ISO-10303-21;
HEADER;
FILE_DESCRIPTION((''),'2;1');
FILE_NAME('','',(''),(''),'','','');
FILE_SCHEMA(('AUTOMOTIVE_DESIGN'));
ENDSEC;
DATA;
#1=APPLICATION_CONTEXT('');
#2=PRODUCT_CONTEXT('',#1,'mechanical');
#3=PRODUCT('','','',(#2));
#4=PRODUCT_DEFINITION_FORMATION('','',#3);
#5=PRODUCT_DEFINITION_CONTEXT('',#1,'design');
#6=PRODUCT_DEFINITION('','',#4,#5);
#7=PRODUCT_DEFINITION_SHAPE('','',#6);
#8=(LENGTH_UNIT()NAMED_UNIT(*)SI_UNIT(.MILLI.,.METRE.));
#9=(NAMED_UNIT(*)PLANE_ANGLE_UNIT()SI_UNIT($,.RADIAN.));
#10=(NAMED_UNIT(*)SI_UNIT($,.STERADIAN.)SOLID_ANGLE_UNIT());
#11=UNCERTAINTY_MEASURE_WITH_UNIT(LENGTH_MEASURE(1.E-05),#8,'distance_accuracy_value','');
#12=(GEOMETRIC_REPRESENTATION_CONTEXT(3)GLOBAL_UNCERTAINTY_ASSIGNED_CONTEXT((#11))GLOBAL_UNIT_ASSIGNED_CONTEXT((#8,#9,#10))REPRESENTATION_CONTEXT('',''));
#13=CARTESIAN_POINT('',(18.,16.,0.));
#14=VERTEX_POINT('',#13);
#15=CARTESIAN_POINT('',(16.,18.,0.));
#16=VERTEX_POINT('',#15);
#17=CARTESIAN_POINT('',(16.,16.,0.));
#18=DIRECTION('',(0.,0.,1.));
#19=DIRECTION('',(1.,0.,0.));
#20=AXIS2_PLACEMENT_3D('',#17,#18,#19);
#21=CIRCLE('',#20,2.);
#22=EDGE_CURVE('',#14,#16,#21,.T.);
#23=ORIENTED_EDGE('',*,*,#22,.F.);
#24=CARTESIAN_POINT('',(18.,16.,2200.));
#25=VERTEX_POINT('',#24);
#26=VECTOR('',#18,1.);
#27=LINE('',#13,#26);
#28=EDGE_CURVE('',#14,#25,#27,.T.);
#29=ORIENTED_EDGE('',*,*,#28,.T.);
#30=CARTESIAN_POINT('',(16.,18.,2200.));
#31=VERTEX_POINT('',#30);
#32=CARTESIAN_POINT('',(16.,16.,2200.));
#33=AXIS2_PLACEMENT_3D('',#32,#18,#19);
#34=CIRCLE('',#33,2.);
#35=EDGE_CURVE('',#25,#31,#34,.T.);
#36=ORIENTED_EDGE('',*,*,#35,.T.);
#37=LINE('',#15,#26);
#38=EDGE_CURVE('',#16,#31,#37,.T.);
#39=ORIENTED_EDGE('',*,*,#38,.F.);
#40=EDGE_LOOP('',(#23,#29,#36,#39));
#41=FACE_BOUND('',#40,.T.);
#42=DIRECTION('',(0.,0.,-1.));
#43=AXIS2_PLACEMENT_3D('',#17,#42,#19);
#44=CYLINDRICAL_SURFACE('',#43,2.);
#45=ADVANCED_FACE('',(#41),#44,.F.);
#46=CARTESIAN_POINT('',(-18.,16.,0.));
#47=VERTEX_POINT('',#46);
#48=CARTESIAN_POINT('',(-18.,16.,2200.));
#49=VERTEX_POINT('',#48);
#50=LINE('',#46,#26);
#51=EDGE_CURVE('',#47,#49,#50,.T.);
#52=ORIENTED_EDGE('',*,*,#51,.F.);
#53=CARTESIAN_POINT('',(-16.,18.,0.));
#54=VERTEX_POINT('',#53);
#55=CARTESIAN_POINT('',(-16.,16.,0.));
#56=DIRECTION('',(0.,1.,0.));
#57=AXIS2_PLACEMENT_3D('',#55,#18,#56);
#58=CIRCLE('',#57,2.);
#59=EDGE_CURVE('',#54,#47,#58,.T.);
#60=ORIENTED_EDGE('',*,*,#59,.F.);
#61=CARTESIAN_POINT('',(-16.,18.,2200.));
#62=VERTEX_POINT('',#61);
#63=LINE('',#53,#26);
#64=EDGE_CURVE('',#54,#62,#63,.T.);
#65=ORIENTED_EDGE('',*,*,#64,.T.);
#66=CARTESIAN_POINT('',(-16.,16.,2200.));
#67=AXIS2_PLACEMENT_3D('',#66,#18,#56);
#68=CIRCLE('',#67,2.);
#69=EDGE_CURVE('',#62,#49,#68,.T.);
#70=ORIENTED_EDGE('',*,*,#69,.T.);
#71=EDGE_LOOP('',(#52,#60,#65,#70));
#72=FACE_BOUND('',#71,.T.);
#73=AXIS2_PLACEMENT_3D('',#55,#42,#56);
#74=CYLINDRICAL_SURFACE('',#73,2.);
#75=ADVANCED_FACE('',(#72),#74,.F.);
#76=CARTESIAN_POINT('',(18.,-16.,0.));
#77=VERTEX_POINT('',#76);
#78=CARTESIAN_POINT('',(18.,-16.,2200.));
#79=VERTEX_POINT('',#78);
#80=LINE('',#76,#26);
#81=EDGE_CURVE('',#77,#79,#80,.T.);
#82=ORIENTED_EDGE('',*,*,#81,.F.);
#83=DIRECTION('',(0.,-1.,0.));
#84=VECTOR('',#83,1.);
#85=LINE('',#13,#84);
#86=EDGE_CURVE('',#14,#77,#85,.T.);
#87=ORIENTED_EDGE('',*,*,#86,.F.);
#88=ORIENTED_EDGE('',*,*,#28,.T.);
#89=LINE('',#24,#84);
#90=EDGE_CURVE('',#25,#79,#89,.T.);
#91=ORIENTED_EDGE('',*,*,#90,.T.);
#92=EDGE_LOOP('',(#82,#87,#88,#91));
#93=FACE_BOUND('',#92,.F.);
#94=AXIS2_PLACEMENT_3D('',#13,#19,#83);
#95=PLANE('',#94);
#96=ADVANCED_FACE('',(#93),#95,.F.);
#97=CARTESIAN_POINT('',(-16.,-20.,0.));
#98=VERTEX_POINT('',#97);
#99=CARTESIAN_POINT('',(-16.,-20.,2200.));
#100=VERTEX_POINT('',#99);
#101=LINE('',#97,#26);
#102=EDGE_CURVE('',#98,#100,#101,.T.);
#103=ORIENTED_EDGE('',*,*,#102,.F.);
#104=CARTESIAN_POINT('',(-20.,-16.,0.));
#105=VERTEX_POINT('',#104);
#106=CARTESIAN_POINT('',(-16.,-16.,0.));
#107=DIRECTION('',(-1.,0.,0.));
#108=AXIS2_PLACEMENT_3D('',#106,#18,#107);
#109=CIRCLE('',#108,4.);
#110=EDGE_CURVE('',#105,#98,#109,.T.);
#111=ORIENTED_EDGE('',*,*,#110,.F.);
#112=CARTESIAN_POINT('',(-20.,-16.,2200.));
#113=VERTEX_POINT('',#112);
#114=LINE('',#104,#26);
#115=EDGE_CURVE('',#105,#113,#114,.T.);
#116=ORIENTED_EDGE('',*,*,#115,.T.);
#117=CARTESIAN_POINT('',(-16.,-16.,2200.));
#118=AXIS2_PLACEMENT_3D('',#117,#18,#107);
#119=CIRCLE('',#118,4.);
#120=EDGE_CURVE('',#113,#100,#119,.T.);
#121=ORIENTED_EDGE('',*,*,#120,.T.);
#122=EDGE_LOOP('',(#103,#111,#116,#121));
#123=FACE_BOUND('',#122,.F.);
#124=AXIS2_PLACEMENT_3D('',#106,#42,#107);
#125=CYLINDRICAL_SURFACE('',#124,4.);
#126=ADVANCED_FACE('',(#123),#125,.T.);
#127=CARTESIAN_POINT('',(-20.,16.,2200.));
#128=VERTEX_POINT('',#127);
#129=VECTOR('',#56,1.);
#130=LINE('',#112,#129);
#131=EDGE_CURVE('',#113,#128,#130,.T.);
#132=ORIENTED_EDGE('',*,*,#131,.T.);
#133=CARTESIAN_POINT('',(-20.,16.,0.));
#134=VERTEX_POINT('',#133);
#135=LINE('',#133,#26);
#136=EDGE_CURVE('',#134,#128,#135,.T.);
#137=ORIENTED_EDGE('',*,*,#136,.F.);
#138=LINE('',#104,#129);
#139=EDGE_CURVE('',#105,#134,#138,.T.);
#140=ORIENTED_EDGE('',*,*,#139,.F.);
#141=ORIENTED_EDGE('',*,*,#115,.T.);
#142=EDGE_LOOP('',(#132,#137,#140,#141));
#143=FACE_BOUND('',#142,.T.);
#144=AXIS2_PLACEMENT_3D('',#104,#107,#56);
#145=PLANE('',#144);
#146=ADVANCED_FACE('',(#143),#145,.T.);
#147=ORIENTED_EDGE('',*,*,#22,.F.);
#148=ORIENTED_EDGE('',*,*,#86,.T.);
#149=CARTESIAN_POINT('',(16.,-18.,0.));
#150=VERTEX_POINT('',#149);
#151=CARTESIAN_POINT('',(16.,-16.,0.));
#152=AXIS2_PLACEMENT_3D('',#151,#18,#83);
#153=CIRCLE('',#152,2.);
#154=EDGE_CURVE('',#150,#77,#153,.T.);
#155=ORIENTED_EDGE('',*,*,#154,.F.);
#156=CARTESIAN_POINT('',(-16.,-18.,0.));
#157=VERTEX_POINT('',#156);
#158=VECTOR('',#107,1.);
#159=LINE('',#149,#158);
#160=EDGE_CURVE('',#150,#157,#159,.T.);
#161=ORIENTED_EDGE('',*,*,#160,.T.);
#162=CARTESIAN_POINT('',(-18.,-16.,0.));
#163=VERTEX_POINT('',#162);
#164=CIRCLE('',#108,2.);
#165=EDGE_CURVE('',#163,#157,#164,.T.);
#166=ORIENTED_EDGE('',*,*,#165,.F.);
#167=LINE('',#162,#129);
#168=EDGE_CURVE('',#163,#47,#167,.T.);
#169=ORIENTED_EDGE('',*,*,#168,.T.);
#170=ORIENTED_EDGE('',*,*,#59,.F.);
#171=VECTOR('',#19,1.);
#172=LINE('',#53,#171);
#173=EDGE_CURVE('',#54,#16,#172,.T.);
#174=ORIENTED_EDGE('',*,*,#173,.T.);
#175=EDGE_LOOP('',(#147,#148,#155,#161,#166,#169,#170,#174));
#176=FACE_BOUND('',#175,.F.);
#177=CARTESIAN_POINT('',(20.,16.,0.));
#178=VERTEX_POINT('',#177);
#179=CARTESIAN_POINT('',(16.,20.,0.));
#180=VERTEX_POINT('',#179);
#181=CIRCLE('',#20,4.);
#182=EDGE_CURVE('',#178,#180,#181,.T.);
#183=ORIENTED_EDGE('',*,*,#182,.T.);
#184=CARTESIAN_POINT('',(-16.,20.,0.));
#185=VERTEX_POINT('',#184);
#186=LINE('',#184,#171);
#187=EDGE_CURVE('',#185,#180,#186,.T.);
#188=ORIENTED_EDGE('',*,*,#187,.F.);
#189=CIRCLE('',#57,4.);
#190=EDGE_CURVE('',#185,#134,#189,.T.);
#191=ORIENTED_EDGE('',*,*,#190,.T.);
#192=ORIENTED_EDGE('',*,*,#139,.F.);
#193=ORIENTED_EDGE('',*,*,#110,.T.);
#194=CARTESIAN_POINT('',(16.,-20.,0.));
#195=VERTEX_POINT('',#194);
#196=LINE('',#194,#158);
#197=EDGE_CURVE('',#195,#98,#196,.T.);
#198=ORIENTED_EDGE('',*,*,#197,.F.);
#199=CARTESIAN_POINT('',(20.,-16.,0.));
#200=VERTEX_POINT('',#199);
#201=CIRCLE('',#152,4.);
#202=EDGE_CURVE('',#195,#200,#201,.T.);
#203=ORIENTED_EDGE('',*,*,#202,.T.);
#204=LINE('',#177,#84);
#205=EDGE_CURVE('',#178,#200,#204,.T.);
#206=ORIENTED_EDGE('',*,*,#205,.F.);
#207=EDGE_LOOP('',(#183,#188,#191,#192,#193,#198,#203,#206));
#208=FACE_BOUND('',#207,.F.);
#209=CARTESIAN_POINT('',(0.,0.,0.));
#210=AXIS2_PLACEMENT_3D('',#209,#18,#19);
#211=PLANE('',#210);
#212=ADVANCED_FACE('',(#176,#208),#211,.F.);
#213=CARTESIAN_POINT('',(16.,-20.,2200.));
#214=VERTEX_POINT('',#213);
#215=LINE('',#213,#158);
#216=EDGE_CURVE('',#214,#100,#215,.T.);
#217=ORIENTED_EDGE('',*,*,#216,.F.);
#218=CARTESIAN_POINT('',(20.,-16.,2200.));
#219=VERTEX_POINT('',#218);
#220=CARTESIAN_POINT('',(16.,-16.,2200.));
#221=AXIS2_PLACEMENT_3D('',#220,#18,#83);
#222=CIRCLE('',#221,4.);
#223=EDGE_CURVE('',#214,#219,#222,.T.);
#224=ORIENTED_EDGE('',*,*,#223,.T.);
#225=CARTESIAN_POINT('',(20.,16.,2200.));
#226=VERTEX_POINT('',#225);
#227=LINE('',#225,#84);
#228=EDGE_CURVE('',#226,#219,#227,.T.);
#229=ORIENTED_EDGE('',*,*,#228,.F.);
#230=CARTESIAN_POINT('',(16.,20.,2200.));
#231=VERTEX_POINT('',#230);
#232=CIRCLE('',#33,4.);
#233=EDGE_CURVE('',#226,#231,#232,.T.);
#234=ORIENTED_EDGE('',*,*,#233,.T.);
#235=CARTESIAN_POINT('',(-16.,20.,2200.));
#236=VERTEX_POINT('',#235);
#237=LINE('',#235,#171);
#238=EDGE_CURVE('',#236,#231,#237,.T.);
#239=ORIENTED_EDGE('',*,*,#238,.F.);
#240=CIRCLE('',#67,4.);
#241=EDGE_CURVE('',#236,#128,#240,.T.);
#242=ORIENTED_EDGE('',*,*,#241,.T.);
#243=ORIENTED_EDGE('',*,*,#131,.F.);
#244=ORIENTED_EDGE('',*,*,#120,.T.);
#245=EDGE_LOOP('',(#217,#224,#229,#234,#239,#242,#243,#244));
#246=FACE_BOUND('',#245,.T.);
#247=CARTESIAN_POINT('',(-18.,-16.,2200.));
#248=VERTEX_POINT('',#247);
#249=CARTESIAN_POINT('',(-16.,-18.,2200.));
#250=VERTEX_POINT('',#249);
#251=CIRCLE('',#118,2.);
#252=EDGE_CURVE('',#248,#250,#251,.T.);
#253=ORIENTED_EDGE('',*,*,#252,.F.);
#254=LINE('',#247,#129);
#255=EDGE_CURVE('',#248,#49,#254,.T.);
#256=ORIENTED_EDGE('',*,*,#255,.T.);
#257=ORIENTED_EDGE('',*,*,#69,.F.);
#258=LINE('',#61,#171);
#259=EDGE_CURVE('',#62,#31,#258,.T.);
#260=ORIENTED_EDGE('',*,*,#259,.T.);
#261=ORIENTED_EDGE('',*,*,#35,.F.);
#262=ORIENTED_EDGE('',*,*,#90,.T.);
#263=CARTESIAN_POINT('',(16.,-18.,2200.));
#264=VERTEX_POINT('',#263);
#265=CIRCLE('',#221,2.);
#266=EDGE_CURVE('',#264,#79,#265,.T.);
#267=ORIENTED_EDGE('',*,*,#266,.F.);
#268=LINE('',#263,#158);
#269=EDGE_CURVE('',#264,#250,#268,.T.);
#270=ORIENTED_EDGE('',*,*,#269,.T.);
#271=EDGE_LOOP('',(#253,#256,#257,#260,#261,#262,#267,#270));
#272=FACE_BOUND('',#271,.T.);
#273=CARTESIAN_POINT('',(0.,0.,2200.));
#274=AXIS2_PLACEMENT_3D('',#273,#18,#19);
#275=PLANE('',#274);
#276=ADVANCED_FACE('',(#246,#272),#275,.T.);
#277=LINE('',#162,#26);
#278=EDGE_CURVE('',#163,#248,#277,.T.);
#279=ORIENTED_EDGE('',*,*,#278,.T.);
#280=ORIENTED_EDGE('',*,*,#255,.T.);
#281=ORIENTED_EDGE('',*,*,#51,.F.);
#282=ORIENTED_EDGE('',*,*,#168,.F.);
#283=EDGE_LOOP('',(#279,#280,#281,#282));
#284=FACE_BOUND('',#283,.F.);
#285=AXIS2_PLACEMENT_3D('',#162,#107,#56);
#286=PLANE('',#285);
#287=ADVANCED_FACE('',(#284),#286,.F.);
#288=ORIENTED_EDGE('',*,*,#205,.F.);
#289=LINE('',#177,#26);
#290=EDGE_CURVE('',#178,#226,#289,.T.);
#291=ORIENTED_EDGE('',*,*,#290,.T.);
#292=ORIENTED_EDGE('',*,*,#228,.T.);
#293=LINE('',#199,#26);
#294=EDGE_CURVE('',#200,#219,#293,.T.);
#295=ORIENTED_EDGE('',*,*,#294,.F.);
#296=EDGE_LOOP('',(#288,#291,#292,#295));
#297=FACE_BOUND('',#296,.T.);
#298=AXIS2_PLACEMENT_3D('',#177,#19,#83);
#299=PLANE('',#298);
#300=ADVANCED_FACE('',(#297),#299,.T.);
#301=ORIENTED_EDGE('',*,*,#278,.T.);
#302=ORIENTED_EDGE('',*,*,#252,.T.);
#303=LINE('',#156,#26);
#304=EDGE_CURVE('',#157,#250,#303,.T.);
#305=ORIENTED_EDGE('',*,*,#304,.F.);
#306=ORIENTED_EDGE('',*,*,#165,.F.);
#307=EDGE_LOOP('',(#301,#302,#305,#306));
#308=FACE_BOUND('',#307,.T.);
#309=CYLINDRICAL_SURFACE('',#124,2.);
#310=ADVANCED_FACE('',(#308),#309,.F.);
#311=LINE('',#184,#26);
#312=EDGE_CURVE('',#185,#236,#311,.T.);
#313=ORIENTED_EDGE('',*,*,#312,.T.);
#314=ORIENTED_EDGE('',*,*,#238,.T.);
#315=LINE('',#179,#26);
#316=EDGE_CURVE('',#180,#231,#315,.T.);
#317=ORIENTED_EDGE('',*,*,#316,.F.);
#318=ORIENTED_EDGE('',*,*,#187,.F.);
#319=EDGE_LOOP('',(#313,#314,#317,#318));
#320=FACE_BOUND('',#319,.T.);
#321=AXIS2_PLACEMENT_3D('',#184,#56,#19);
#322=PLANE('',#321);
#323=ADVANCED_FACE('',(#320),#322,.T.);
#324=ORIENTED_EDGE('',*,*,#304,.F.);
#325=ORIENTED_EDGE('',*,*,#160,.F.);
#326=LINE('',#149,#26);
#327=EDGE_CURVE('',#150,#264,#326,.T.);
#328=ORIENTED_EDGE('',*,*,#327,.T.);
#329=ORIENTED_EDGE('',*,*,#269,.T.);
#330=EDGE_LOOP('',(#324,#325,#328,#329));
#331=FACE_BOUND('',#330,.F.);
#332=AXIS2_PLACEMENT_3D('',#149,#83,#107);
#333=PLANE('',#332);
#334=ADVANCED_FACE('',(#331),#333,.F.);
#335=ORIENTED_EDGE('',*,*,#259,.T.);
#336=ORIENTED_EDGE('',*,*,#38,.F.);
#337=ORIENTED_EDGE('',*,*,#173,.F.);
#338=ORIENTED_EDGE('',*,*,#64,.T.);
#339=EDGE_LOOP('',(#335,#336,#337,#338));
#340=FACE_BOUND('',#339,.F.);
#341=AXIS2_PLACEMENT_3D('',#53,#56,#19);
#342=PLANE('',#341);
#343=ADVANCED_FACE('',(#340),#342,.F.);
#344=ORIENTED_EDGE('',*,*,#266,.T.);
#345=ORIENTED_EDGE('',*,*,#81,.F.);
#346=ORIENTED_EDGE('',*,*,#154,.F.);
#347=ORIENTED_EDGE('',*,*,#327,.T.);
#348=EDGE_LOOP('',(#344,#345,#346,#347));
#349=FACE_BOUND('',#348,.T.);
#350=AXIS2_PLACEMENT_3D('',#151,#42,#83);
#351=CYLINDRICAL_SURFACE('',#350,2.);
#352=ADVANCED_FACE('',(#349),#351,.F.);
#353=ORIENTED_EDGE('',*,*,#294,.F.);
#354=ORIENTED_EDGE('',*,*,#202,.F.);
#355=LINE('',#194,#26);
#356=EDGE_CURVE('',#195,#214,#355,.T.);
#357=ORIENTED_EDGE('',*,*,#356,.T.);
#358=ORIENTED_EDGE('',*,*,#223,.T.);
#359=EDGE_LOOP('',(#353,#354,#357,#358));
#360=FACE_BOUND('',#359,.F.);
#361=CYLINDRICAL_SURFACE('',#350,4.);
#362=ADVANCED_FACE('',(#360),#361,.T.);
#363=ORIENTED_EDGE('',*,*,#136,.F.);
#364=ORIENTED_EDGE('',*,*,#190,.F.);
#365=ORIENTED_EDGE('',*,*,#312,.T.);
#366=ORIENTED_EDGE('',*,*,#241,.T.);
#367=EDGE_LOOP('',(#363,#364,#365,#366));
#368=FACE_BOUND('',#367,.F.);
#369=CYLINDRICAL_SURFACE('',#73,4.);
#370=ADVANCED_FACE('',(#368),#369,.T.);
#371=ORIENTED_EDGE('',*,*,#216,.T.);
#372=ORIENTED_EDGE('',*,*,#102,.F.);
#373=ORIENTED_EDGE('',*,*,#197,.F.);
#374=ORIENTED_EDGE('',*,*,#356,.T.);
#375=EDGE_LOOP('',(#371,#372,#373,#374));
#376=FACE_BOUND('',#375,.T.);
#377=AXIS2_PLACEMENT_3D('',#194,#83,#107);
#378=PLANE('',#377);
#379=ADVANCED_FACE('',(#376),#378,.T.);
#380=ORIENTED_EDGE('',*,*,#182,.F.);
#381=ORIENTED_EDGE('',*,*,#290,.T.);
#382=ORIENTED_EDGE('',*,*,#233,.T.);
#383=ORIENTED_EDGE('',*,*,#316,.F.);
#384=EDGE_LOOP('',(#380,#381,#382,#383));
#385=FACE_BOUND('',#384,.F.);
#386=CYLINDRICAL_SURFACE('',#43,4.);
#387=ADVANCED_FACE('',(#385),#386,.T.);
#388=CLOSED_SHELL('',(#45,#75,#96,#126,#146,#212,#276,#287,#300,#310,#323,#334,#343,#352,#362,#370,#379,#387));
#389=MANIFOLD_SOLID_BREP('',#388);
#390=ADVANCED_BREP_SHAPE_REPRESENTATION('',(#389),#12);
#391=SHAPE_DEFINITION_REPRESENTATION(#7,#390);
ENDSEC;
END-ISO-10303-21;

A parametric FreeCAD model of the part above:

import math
import FreeCAD as App
import Part
import Sketcher
from FreeCAD import Vector

doc = App.newDocument("Part")
params = doc.addObject("Spreadsheet::Sheet", "Params")
for row, (alias, value) in enumerate([
    ("sketch1_radius", "4 mm"),
    ("sketch1_radius2", "2 mm"),
    ("pad1_length", "2200 mm"),
], start=1):
    params.set(f"A{row}", alias)
    params.set(f"B{row}", "=" + value)
    params.setAlias(f"B{row}", alias)

body = doc.addObject("PartDesign::Body", "Body")

# Sketch on XY plane
sketch1 = body.newObject("Sketcher::SketchObject", "Sketch")
sketch1.AttachmentSupport = (doc.getObject("XY_Plane"), [""])
sketch1.MapMode = "FlatFace"
sketch1.addGeometry([
    Part.LineSegment(Vector(-20, 16, 0), Vector(-20, -16, 0)),  # 0
    Part.ArcOfCircle(Part.Circle(Vector(-16, -16, 0), Vector(0, 0, 1), 4), math.radians(180), math.radians(270)),  # 1
    Part.LineSegment(Vector(-16, -20, 0), Vector(16, -20, 0)),  # 2
    Part.ArcOfCircle(Part.Circle(Vector(16, -16, 0), Vector(0, 0, 1), 4), math.radians(-90), math.radians(0)),  # 3
    Part.LineSegment(Vector(20, -16, 0), Vector(20, 16, 0)),  # 4
    Part.ArcOfCircle(Part.Circle(Vector(16, 16, 0), Vector(0, 0, 1), 4), math.radians(0), math.radians(90)),  # 5
    Part.LineSegment(Vector(16, 20, 0), Vector(-16, 20, 0)),  # 6
    Part.ArcOfCircle(Part.Circle(Vector(-16, 16, 0), Vector(0, 0, 1), 4), math.radians(90), math.radians(180)),  # 7
    Part.ArcOfCircle(Part.Circle(Vector(-16, 16, 0), Vector(0, 0, 1), 2), math.radians(90), math.radians(180)),  # 8
    Part.LineSegment(Vector(-16, 18, 0), Vector(16, 18, 0)),  # 9
    Part.ArcOfCircle(Part.Circle(Vector(16, 16, 0), Vector(0, 0, 1), 2), math.radians(0), math.radians(90)),  # 10
    Part.LineSegment(Vector(18, 16, 0), Vector(18, -16, 0)),  # 11
    Part.ArcOfCircle(Part.Circle(Vector(16, -16, 0), Vector(0, 0, 1), 2), math.radians(-90), math.radians(0)),  # 12
    Part.LineSegment(Vector(16, -18, 0), Vector(-16, -18, 0)),  # 13
    Part.ArcOfCircle(Part.Circle(Vector(-16, -16, 0), Vector(0, 0, 1), 2), math.radians(180), math.radians(270)),  # 14
    Part.LineSegment(Vector(-18, -16, 0), Vector(-18, 16, 0)),  # 15
], False)
sketch1.addConstraint([
    Sketcher.Constraint("Tangent", 0, 2, 1, 1),
    Sketcher.Constraint("Tangent", 1, 2, 2, 1),
    Sketcher.Constraint("Tangent", 2, 2, 3, 1),
    Sketcher.Constraint("Tangent", 3, 2, 4, 1),
    Sketcher.Constraint("Tangent", 4, 2, 5, 1),
    Sketcher.Constraint("Tangent", 5, 2, 6, 1),
    Sketcher.Constraint("Tangent", 6, 2, 7, 1),
    Sketcher.Constraint("Tangent", 7, 2, 0, 1),
    Sketcher.Constraint("Tangent", 8, 1, 9, 1),
    Sketcher.Constraint("Tangent", 9, 2, 10, 2),
    Sketcher.Constraint("Tangent", 10, 1, 11, 1),
    Sketcher.Constraint("Tangent", 11, 2, 12, 2),
    Sketcher.Constraint("Tangent", 12, 1, 13, 1),
    Sketcher.Constraint("Tangent", 13, 2, 14, 2),
    Sketcher.Constraint("Tangent", 14, 1, 15, 1),
    Sketcher.Constraint("Tangent", 15, 2, 8, 2),
    Sketcher.Constraint("Vertical", 0),
    Sketcher.Constraint("Horizontal", 2),
    Sketcher.Constraint("Vertical", 4),
    Sketcher.Constraint("Horizontal", 6),
    Sketcher.Constraint("Horizontal", 9),
    Sketcher.Constraint("Vertical", 11),
    Sketcher.Constraint("Horizontal", 13),
    Sketcher.Constraint("Vertical", 15),
    Sketcher.Constraint("Coincident", 8, 3, 7, 3),
    Sketcher.Constraint("Coincident", 10, 3, 5, 3),
    Sketcher.Constraint("Coincident", 12, 3, 3, 3),
    Sketcher.Constraint("Equal", 1, 3),
    Sketcher.Constraint("Equal", 3, 5),
    Sketcher.Constraint("Equal", 5, 7),
    Sketcher.Constraint("Equal", 12, 14),
    Sketcher.Constraint("Symmetric", 1, 3, 5, 3, -1, 1),
    Sketcher.Constraint("Equal", 13, 0),
    Sketcher.Constraint("Radius", 1, 4.0),
    Sketcher.Constraint("Radius", 8, 2.0),
    Sketcher.Constraint("DistanceX", 0, 2, -1, 1, 20.0),
])
sketch1.setExpression("Constraints[33]", "Params.sketch1_radius")
sketch1.setExpression("Constraints[34]", "Params.sketch1_radius2")
pad1 = body.newObject("PartDesign::Pad", "Pad")
pad1.Profile = sketch1
pad1.setExpression("Length", "Params.pad1_length")

doc.recompute()
